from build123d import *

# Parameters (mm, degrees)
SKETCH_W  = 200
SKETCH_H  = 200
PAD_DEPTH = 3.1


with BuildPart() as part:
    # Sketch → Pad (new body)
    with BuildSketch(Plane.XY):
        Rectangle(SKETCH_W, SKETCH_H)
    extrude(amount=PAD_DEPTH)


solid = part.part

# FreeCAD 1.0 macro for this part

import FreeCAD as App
import Part
import Sketcher
Q = App.Units.Quantity


def add_polygon(sketch, points):
    """Adds a closed chain of lines whose ends are joined by coincident constraints."""
    first, n = sketch.GeometryCount, len(points)
    for a, b in zip(points, points[1:] + points[:1]):
        sketch.addGeometry(Part.LineSegment(App.Vector(*a, 0), App.Vector(*b, 0)), False)
    for i in range(n):
        sketch.addConstraint(Sketcher.Constraint("Coincident", first + i, 2, first + (i + 1) % n, 1))

doc = App.newDocument("Part")
body = doc.addObject("PartDesign::Body", "Body")

# Sketch on XY plane
sketch1 = doc.addObject("Sketcher::SketchObject", "Sketch")
body.addObject(sketch1)
sketch1.AttachmentSupport = (doc.XY_Plane, [""])
sketch1.MapMode = "FlatFace"
add_polygon(sketch1, [(-100, 100), (-100, -100), (100, -100), (100, 100)])  # lines 0-3
sketch1.addConstraint([
    Sketcher.Constraint("Vertical", 0),
    Sketcher.Constraint("Horizontal", 1),
    Sketcher.Constraint("Vertical", 2),
    Sketcher.Constraint("Horizontal", 3),
    Sketcher.Constraint("Symmetric", 0, 2, 2, 2, -1, 1),
    Sketcher.Constraint("Equal", 3, 0),
    Sketcher.Constraint("DistanceX", 1, 1, 1, 2, Q("200 mm")),
])
pad1 = doc.addObject("PartDesign::Pad", "Pad")
body.addObject(pad1)
pad1.Profile = sketch1
pad1.Length = 3.1

doc.recompute()
